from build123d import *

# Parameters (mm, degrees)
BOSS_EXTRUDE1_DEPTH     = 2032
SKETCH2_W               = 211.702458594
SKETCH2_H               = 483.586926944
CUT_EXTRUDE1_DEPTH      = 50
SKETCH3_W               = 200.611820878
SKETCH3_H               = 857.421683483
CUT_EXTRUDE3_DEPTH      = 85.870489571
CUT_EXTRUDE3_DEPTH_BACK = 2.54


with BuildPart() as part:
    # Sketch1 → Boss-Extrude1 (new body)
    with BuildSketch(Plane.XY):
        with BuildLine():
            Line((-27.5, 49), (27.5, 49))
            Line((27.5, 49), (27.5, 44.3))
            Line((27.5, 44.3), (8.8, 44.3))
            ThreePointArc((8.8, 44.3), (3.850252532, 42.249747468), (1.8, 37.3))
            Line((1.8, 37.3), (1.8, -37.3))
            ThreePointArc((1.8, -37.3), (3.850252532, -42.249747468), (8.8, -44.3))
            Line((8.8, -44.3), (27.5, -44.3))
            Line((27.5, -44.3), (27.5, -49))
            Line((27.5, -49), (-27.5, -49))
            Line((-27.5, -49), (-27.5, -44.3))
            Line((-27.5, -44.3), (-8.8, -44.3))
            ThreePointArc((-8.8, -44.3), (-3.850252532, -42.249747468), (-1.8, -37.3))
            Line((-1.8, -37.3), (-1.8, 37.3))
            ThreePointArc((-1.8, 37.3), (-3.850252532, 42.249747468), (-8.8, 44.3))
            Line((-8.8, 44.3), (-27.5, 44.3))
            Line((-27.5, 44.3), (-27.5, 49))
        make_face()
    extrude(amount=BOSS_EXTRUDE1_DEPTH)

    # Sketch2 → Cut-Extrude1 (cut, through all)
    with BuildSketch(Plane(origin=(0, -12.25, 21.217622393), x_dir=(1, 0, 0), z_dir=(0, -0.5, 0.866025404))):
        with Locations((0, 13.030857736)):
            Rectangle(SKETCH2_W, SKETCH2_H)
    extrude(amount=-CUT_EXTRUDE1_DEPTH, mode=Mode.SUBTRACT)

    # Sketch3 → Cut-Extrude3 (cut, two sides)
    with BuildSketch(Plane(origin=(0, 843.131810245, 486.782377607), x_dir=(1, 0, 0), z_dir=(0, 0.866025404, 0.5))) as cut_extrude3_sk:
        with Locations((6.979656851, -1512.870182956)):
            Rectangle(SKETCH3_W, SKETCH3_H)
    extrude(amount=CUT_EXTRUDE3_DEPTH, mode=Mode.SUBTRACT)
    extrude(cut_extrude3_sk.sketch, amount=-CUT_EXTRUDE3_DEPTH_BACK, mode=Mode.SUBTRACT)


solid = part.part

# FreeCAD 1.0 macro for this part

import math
import FreeCAD as App
import Part
import Sketcher

V = App.Vector

doc = App.newDocument("Part")
body = doc.addObject("PartDesign::Body", "Body")

# Sketch on XY plane
sketch1 = doc.addObject("Sketcher::SketchObject", "Sketch")
body.addObject(sketch1)
sketch1.AttachmentSupport = (doc.XY_Plane, [""])
sketch1.MapMode = "FlatFace"
sketch1.addGeometry(Part.LineSegment(V(27.5, 49, 0), V(-27.5, 49, 0)), False)
sketch1.addGeometry(Part.LineSegment(V(-27.5, 49, 0), V(-27.5, 44.3, 0)), False)
sketch1.addGeometry(Part.LineSegment(V(-27.5, 44.3, 0), V(-8.8, 44.3, 0)), False)
sketch1.addGeometry(Part.ArcOfCircle(Part.Circle(V(-8.8, 37.3, 0), V(0, 0, 1), 7), math.radians(0), math.radians(90)), False)
sketch1.addGeometry(Part.LineSegment(V(-1.8, 37.3, 0), V(-1.8, -37.3, 0)), False)
sketch1.addGeometry(Part.ArcOfCircle(Part.Circle(V(-8.8, -37.3, 0), V(0, 0, 1), 7), math.radians(-90), math.radians(0)), False)
sketch1.addGeometry(Part.LineSegment(V(-8.8, -44.3, 0), V(-27.5, -44.3, 0)), False)
sketch1.addGeometry(Part.LineSegment(V(-27.5, -44.3, 0), V(-27.5, -49, 0)), False)
sketch1.addGeometry(Part.LineSegment(V(-27.5, -49, 0), V(27.5, -49, 0)), False)
sketch1.addGeometry(Part.LineSegment(V(27.5, -49, 0), V(27.5, -44.3, 0)), False)
sketch1.addGeometry(Part.LineSegment(V(27.5, -44.3, 0), V(8.8, -44.3, 0)), False)
sketch1.addGeometry(Part.ArcOfCircle(Part.Circle(V(8.8, -37.3, 0), V(0, 0, 1), 7), math.radians(-180), math.radians(-90)), False)
sketch1.addGeometry(Part.LineSegment(V(1.8, -37.3, 0), V(1.8, 37.3, 0)), False)
sketch1.addGeometry(Part.ArcOfCircle(Part.Circle(V(8.8, 37.3, 0), V(0, 0, 1), 7), math.radians(90), math.radians(180)), False)
sketch1.addGeometry(Part.LineSegment(V(8.8, 44.3, 0), V(27.5, 44.3, 0)), False)
sketch1.addGeometry(Part.LineSegment(V(27.5, 44.3, 0), V(27.5, 49, 0)), False)
sketch1.addConstraint(Sketcher.Constraint("Coincident", 0, 2, 1, 1))
sketch1.addConstraint(Sketcher.Constraint("Coincident", 1, 2, 2, 1))
sketch1.addConstraint(Sketcher.Constraint("Tangent", 2, 2, 3, 2))
sketch1.addConstraint(Sketcher.Constraint("Tangent", 3, 1, 4, 1))
sketch1.addConstraint(Sketcher.Constraint("Tangent", 4, 2, 5, 2))
sketch1.addConstraint(Sketcher.Constraint("Tangent", 5, 1, 6, 1))
sketch1.addConstraint(Sketcher.Constraint("Coincident", 6, 2, 7, 1))
sketch1.addConstraint(Sketcher.Constraint("Coincident", 7, 2, 8, 1))
sketch1.addConstraint(Sketcher.Constraint("Coincident", 8, 2, 9, 1))
sketch1.addConstraint(Sketcher.Constraint("Coincident", 9, 2, 10, 1))
sketch1.addConstraint(Sketcher.Constraint("Tangent", 10, 2, 11, 2))
sketch1.addConstraint(Sketcher.Constraint("Tangent", 11, 1, 12, 1))
sketch1.addConstraint(Sketcher.Constraint("Tangent", 12, 2, 13, 2))
sketch1.addConstraint(Sketcher.Constraint("Tangent", 13, 1, 14, 1))
sketch1.addConstraint(Sketcher.Constraint("Coincident", 14, 2, 15, 1))
sketch1.addConstraint(Sketcher.Constraint("Coincident", 15, 2, 0, 1))
sketch1.addConstraint(Sketcher.Constraint("Horizontal", 0))
sketch1.addConstraint(Sketcher.Constraint("Vertical", 1))
sketch1.addConstraint(Sketcher.Constraint("Horizontal", 2))
sketch1.addConstraint(Sketcher.Constraint("Vertical", 4))
sketch1.addConstraint(Sketcher.Constraint("Horizontal", 6))
sketch1.addConstraint(Sketcher.Constraint("Vertical", 7))
sketch1.addConstraint(Sketcher.Constraint("Horizontal", 8))
sketch1.addConstraint(Sketcher.Constraint("Vertical", 9))
sketch1.addConstraint(Sketcher.Constraint("Horizontal", 10))
sketch1.addConstraint(Sketcher.Constraint("Vertical", 12))
sketch1.addConstraint(Sketcher.Constraint("Horizontal", 14))
sketch1.addConstraint(Sketcher.Constraint("Vertical", 15))
sketch1.addConstraint(Sketcher.Constraint("Equal", 3, 5))
sketch1.addConstraint(Sketcher.Constraint("Equal", 5, 11))
sketch1.addConstraint(Sketcher.Constraint("Equal", 11, 13))
sketch1.addConstraint(Sketcher.Constraint("Symmetric", 3, 3, 11, 3, -1, 1))
sketch1.addConstraint(Sketcher.Constraint("Symmetric", 0, 2, 8, 2, -1, 1))
sketch1.addConstraint(Sketcher.Constraint("Symmetric", 6, 2, 14, 2, -1, 1))
sketch1.addConstraint(Sketcher.Constraint("Symmetric", 6, 2, 9, 2, -2))
sketch1.addConstraint(Sketcher.Constraint("Radius", 3, 7.0))
sketch1.addConstraint(Sketcher.Constraint("DistanceX", 0, 2, 0, 1, 55.0))
sketch1.addConstraint(Sketcher.Constraint("DistanceX", 2, 1, 2, 2, 18.7))
sketch1.addConstraint(Sketcher.Constraint("DistanceY", 1, 2, 1, 1, 4.7))
sketch1.addConstraint(Sketcher.Constraint("DistanceY", 4, 2, 4, 1, 74.6))
pad1 = doc.addObject("PartDesign::Pad", "Pad")
body.addObject(pad1)
pad1.Profile = sketch1
pad1.Length = 2032

# Sketch on an angled plane
sketch2 = doc.addObject("Sketcher::SketchObject", "Sketch001")
body.addObject(sketch2)
sketch2.Placement = App.Placement(V(0, -12.25, 21.217622), App.Rotation(V(1, 0, 0), V(0, 0.866025404, 0.5), V(0, -0.5, 0.866025404), "ZXY"))
sketch2.addGeometry(Part.LineSegment(V(-105.851229, 254.824321, 0), V(-105.851229, -228.762606, 0)), False)
sketch2.addGeometry(Part.LineSegment(V(-105.851229, -228.762606, 0), V(105.851229, -228.762606, 0)), False)
sketch2.addGeometry(Part.LineSegment(V(105.851229, -228.762606, 0), V(105.851229, 254.824321, 0)), False)
sketch2.addGeometry(Part.LineSegment(V(105.851229, 254.824321, 0), V(-105.851229, 254.824321, 0)), False)
sketch2.addConstraint(Sketcher.Constraint("Coincident", 0, 2, 1, 1))
sketch2.addConstraint(Sketcher.Constraint("Coincident", 1, 2, 2, 1))
sketch2.addConstraint(Sketcher.Constraint("Coincident", 2, 2, 3, 1))
sketch2.addConstraint(Sketcher.Constraint("Coincident", 3, 2, 0, 1))
sketch2.addConstraint(Sketcher.Constraint("Vertical", 0))
sketch2.addConstraint(Sketcher.Constraint("Horizontal", 1))
sketch2.addConstraint(Sketcher.Constraint("Vertical", 2))
sketch2.addConstraint(Sketcher.Constraint("Horizontal", 3))
sketch2.addConstraint(Sketcher.Constraint("DistanceX", 1, 1, 1, 2, 211.702459))
sketch2.addConstraint(Sketcher.Constraint("DistanceY", 0, 2, 0, 1, 483.586927))
sketch2.addConstraint(Sketcher.Constraint("DistanceX", 0, 2, -1, 1, 105.851229))
sketch2.addConstraint(Sketcher.Constraint("DistanceY", -1, 1, 2, 2, 254.824321))
pocket1 = doc.addObject("PartDesign::Pocket", "Pocket")
body.addObject(pocket1)
pocket1.Profile = sketch2
pocket1.Type = "ThroughAll"

# Sketch on an angled plane
sketch3 = doc.addObject("Sketcher::SketchObject", "Sketch002")
body.addObject(sketch3)
sketch3.Placement = App.Placement(V(0, 843.13181, 486.782378), App.Rotation(V(1, 0, 0), V(0, 0.5, -0.866025404), V(0, 0.866025404, 0.5), "ZXY"))
sketch3.addGeometry(Part.LineSegment(V(-93.326254, -1084.159342, 0), V(-93.326254, -1941.581025, 0)), False)
sketch3.addGeometry(Part.LineSegment(V(-93.326254, -1941.581025, 0), V(107.285567, -1941.581025, 0)), False)
sketch3.addGeometry(Part.LineSegment(V(107.285567, -1941.581025, 0), V(107.285567, -1084.159342, 0)), False)
sketch3.addGeometry(Part.LineSegment(V(107.285567, -1084.159342, 0), V(-93.326254, -1084.159342, 0)), False)
sketch3.addConstraint(Sketcher.Constraint("Coincident", 0, 2, 1, 1))
sketch3.addConstraint(Sketcher.Constraint("Coincident", 1, 2, 2, 1))
sketch3.addConstraint(Sketcher.Constraint("Coincident", 2, 2, 3, 1))
sketch3.addConstraint(Sketcher.Constraint("Coincident", 3, 2, 0, 1))
sketch3.addConstraint(Sketcher.Constraint("Vertical", 0))
sketch3.addConstraint(Sketcher.Constraint("Horizontal", 1))
sketch3.addConstraint(Sketcher.Constraint("Vertical", 2))
sketch3.addConstraint(Sketcher.Constraint("Horizontal", 3))
sketch3.addConstraint(Sketcher.Constraint("DistanceX", 1, 1, 1, 2, 200.611821))
sketch3.addConstraint(Sketcher.Constraint("DistanceY", 0, 2, 0, 1, 857.421684))
sketch3.addConstraint(Sketcher.Constraint("DistanceY", 2, 2, -1, 1, 1084.159342))
sketch3.addConstraint(Sketcher.Constraint("DistanceX", 0, 2, -1, 1, 93.326254))
pocket2 = doc.addObject("PartDesign::Pocket", "Pocket001")
body.addObject(pocket2)
pocket2.Profile = sketch3
pocket2.Type = "TwoLengths"
pocket2.Length = 85.87049
pocket2.Length2 = 2.54
pocket2.Reversed = True

doc.recompute()
